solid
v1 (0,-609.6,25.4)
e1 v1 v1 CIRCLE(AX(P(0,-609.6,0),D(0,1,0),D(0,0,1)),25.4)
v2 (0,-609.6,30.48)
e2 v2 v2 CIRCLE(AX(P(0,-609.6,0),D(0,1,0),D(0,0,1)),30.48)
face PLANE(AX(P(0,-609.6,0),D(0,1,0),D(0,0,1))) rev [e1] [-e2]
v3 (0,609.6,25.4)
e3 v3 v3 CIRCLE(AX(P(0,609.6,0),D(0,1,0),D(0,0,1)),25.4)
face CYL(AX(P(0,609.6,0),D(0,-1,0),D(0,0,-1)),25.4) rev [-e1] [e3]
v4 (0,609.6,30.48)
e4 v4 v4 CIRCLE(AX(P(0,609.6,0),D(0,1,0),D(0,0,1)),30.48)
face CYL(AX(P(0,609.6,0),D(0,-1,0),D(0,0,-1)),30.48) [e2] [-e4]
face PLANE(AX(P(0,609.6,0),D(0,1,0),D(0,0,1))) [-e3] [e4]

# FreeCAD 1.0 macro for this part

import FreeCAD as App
import Part
import Sketcher
Q = App.Units.Quantity

doc = App.newDocument("Part")
params = doc.addObject("Spreadsheet::Sheet", "Params")
for row, (alias, value) in enumerate([
    ("sketch1_diameter", "2 in"),
    ("sketch1_diameter2", "2.4 in"),
    ("pad1_length", "48 in"),
], start=1):
    params.set(f"A{row}", alias)
    params.set(f"B{row}", "=" + value)
    params.setAlias(f"B{row}", alias)

body = doc.addObject("PartDesign::Body", "Body")

# Sketch on XZ plane
sketch1 = body.newObject("Sketcher::SketchObject", "Sketch")
sketch1.AttachmentSupport = (doc.getObject("XZ_Plane"), [""])
sketch1.MapMode = "FlatFace"
sketch1.addGeometry([
    Part.Circle(App.Vector(0, 0, 0), App.Vector(0, 0, 1), 30.48),
    Part.Circle(App.Vector(0, 0, 0), App.Vector(0, 0, 1), 25.4),
], False)
sketch1.addConstraint([
    Sketcher.Constraint("Coincident", 0, 3, -1, 1),
    Sketcher.Constraint("Coincident", 1, 3, -1, 1),
    Sketcher.Constraint("Diameter", 1, Q("2 in")),
    Sketcher.Constraint("Diameter", 0, Q("2.4 in")),
])
sketch1.setExpression("Constraints[2]", "Params.sketch1_diameter")
sketch1.setExpression("Constraints[3]", "Params.sketch1_diameter2")
pad1 = body.newObject("PartDesign::Pad", "Pad")
pad1.Profile = sketch1
pad1.setExpression("Length", "Params.pad1_length")
pad1.Midplane = True

doc.recompute()
